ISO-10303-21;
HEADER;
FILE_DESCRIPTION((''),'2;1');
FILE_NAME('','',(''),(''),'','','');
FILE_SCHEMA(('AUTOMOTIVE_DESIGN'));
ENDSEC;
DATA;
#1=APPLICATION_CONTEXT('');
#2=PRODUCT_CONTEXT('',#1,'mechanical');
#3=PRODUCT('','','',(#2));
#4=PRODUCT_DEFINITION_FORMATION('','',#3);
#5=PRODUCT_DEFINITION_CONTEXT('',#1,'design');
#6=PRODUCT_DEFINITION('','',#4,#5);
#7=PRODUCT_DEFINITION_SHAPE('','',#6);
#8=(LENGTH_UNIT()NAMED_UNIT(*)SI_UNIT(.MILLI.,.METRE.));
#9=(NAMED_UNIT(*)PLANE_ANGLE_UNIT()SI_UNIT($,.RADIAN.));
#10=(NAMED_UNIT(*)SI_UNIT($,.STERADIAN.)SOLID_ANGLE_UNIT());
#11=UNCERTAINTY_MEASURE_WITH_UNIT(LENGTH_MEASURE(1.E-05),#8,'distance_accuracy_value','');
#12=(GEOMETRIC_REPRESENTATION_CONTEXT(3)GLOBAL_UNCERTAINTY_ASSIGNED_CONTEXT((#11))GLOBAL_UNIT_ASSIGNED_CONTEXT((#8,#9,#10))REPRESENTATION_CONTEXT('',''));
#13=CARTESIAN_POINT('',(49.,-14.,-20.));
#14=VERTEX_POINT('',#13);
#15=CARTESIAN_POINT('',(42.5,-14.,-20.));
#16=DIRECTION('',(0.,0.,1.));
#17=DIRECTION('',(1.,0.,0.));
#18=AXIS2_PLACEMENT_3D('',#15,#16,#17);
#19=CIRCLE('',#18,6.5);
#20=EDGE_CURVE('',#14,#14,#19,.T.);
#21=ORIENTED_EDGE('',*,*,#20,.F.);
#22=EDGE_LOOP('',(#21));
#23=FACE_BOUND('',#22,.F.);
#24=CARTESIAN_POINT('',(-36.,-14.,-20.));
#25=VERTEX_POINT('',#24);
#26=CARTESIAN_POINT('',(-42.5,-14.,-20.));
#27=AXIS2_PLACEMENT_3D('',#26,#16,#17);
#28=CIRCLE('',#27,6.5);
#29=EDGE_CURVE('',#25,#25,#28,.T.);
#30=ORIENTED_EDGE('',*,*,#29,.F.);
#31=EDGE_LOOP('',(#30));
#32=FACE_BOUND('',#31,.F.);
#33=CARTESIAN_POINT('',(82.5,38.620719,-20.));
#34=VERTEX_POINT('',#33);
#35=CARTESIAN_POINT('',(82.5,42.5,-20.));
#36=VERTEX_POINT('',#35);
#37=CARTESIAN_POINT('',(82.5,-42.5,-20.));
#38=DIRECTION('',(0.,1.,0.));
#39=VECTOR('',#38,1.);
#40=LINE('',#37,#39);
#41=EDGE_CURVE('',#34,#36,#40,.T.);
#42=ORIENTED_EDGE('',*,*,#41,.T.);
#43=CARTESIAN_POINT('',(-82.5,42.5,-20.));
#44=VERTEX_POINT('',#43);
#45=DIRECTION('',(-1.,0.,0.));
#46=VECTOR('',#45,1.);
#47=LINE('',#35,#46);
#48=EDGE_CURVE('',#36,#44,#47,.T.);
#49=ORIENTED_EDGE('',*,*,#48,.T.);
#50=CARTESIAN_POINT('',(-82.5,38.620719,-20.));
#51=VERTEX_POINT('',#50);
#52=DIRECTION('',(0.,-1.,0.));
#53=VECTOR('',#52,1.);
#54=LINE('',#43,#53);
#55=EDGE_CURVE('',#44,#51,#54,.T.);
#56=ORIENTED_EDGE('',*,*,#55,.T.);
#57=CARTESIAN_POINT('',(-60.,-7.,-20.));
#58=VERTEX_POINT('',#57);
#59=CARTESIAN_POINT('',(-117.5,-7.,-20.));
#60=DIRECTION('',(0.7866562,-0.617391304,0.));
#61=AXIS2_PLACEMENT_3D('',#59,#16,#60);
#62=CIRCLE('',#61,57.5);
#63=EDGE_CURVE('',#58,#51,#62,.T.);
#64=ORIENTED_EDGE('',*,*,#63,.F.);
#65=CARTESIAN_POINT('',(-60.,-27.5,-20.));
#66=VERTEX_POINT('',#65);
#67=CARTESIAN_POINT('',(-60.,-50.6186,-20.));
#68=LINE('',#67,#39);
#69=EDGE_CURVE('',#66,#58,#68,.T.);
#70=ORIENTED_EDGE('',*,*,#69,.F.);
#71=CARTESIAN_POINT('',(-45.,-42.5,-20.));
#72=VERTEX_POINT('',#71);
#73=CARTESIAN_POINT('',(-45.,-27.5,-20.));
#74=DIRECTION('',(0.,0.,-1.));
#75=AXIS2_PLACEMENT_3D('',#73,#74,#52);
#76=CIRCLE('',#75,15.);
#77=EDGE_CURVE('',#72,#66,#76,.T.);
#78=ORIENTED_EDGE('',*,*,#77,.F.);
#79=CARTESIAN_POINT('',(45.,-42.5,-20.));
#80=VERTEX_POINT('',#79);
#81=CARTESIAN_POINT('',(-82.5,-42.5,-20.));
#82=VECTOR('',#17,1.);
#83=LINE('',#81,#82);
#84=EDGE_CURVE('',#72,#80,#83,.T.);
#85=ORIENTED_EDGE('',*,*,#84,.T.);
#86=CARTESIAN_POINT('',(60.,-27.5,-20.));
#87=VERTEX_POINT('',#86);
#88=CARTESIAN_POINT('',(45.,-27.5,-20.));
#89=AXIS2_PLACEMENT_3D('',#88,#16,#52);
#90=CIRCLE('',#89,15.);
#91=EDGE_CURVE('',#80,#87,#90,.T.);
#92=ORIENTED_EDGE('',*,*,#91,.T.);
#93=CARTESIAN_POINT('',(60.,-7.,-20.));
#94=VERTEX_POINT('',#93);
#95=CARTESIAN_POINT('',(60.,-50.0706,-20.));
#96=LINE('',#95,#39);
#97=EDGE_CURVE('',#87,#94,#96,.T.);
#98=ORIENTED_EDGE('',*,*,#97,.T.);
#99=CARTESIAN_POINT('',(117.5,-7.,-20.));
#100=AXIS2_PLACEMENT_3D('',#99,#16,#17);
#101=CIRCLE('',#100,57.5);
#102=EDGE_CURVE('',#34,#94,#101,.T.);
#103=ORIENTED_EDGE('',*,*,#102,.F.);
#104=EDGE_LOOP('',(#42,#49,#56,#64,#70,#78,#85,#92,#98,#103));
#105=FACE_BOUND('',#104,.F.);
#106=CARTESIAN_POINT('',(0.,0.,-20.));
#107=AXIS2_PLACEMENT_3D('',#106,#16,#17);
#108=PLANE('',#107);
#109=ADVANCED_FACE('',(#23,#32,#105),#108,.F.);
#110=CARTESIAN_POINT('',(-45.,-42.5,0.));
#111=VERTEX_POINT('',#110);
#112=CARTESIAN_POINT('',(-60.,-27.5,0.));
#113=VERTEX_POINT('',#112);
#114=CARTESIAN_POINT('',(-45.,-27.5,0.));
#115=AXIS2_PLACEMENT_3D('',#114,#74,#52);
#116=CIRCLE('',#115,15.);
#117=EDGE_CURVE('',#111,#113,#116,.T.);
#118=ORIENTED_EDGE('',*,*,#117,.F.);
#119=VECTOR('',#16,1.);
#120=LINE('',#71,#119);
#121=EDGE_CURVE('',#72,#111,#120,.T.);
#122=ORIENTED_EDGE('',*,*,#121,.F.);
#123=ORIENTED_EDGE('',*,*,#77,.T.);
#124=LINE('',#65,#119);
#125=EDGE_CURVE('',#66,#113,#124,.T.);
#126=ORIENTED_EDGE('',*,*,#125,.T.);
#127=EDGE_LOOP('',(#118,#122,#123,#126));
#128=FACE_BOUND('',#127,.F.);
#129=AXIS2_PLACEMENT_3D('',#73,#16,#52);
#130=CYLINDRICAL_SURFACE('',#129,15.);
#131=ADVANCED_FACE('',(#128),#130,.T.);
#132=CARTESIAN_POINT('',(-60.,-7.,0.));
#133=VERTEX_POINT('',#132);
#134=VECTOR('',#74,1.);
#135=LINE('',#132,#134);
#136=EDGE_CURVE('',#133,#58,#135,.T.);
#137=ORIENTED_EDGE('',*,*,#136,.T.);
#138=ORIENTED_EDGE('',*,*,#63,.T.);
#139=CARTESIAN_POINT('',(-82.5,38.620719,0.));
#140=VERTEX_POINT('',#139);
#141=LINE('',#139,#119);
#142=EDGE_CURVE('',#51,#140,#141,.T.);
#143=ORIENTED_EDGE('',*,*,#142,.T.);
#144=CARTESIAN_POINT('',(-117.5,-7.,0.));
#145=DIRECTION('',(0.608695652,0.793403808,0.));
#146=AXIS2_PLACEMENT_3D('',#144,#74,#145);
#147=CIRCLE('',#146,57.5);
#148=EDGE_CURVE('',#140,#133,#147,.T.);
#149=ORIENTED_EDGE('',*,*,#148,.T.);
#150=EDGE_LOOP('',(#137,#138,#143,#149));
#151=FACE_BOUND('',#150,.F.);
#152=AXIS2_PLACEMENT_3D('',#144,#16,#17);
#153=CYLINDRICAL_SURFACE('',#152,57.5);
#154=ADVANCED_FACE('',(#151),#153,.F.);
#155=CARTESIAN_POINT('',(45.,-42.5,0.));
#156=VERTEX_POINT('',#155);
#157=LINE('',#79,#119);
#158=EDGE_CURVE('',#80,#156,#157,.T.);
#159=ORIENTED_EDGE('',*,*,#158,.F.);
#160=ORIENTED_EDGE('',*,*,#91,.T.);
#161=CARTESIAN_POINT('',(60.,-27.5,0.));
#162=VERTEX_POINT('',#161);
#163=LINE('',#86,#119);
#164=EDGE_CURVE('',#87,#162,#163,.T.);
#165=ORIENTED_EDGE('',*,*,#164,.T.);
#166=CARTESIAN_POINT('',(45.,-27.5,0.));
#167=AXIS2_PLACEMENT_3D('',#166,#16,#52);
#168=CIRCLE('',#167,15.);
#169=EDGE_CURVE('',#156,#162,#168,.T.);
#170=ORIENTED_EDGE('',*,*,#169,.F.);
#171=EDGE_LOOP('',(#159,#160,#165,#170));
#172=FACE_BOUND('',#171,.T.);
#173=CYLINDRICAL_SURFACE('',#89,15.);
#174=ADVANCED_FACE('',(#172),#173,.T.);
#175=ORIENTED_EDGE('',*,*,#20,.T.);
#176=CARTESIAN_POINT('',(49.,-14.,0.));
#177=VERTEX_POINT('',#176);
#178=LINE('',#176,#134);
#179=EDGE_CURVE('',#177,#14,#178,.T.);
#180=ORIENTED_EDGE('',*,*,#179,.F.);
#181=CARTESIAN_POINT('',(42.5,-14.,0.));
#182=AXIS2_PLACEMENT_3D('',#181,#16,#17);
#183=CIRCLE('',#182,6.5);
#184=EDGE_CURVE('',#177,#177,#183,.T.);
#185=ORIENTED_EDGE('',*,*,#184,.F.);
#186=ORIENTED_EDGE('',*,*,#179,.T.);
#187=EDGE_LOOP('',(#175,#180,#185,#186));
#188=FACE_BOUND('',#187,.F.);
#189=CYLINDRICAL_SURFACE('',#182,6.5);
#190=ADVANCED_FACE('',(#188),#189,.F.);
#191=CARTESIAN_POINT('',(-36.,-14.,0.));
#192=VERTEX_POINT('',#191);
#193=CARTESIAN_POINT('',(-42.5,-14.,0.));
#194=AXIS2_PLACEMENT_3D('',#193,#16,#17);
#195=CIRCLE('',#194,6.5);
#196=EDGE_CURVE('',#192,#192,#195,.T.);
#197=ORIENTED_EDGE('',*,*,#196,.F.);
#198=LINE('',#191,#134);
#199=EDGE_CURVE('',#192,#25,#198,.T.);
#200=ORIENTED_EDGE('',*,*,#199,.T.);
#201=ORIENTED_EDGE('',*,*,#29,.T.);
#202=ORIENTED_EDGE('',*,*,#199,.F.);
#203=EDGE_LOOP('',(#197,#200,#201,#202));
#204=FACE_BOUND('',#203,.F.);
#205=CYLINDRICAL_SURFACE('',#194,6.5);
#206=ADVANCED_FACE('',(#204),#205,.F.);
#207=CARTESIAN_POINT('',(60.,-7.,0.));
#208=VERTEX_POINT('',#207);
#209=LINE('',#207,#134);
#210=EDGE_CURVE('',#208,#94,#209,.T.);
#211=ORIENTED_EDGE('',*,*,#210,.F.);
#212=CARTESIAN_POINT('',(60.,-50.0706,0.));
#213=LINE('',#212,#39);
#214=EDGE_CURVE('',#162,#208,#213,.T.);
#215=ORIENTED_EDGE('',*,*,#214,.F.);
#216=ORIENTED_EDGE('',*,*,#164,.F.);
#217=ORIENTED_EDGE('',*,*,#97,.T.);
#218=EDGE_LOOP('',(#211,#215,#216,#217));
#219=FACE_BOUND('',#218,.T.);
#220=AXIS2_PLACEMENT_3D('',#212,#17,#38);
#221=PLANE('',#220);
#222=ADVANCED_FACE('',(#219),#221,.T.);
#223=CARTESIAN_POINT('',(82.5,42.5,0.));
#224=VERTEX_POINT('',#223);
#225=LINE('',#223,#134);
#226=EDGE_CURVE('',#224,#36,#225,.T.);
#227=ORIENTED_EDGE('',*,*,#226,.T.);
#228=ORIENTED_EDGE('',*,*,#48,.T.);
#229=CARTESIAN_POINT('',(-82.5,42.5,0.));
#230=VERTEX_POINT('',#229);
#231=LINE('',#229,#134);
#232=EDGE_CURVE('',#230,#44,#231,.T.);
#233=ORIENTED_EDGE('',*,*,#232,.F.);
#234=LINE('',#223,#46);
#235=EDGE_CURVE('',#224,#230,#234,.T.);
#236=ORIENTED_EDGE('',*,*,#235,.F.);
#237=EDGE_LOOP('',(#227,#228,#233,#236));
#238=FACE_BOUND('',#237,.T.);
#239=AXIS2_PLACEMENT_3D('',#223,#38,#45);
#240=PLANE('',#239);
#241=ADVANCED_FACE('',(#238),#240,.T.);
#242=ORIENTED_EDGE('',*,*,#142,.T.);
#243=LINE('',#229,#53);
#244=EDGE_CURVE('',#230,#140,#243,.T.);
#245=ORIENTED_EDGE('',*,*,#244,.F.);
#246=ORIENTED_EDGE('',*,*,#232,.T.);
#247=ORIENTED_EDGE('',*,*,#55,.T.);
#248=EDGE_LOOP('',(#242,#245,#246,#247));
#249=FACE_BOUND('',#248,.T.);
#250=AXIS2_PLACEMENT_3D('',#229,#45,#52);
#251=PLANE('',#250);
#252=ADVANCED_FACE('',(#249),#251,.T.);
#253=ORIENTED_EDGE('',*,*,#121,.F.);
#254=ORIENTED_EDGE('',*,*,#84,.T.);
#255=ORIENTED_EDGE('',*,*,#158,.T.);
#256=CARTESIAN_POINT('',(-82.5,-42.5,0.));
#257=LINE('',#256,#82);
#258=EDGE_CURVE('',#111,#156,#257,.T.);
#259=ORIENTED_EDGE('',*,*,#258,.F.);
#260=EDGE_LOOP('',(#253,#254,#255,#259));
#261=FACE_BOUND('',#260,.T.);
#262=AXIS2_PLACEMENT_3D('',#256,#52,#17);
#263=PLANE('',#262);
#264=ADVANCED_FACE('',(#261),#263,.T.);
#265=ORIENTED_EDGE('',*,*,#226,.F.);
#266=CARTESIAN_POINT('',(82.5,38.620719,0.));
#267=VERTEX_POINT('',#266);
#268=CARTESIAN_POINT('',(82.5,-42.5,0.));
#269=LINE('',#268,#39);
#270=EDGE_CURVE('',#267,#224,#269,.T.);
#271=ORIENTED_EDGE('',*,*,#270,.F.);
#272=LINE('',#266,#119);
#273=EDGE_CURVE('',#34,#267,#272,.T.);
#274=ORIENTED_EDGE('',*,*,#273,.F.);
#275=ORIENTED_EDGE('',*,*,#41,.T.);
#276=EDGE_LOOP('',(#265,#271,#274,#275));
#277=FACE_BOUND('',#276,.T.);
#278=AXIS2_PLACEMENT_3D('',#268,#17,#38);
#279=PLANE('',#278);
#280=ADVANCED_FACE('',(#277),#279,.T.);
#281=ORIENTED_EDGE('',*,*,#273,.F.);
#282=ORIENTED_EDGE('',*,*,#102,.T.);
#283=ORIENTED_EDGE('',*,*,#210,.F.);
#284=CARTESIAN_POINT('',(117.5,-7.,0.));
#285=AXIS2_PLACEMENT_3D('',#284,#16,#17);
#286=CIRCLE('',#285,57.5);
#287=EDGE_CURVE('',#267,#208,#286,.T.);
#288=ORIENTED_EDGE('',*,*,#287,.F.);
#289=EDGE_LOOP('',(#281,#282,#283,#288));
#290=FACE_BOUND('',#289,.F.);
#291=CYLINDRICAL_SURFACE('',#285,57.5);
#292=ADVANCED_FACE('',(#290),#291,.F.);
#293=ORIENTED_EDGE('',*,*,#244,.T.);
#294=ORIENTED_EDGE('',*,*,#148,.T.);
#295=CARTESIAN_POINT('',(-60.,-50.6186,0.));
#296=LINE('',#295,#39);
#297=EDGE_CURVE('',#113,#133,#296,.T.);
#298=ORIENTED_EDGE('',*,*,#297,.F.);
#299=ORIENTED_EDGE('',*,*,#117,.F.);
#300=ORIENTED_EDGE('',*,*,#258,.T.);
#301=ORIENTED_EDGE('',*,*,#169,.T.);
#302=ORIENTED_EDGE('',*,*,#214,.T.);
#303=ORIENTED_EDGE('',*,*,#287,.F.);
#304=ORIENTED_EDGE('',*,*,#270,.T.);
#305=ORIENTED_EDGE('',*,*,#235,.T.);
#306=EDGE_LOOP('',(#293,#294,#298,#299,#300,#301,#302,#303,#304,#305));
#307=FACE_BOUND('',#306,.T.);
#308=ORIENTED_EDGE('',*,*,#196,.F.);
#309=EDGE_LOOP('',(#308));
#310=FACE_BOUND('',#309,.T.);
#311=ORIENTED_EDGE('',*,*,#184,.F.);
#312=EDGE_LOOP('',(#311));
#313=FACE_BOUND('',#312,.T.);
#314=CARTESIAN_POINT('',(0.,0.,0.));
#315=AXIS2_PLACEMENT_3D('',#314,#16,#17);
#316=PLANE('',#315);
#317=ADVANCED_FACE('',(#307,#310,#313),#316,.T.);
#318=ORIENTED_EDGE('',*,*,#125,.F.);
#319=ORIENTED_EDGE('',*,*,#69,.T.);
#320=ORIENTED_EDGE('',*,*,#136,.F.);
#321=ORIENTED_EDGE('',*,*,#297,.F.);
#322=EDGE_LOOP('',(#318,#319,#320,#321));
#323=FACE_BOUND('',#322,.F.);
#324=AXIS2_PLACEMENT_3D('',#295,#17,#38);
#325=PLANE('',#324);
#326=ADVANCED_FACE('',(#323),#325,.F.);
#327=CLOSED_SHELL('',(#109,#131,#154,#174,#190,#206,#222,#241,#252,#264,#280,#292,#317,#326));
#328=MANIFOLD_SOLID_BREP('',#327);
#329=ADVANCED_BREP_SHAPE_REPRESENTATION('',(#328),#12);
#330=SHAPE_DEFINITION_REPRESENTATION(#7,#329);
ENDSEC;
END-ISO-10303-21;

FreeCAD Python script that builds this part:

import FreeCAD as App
import Part
import Sketcher

V = App.Vector


def edges_at(feature, points):
    """Names of the edges that pass closest to the given points."""
    edges = feature.Shape.Edges
    near = lambda p: min(range(len(edges)), key=lambda i: edges[i].distToShape(Part.Vertex(*p))[0])
    return sorted({f"Edge{near(p) + 1}" for p in points})

doc = App.newDocument("Part")
body = doc.addObject("PartDesign::Body", "Body")

# Sketch on XY plane
sketch1 = doc.addObject("Sketcher::SketchObject", "Sketch")
body.addObject(sketch1)
sketch1.AttachmentSupport = (doc.XY_Plane, [""])
sketch1.MapMode = "FlatFace"
sketch1.addGeometry([
    Part.LineSegment(V(-82, 42, 0), V(-82, -42, 0)),
    Part.LineSegment(V(-82, -42, 0), V(82, -42, 0)),
    Part.LineSegment(V(82, -42, 0), V(82, 42, 0)),
    Part.LineSegment(V(82, 42, 0), V(-82, 42, 0)),
], False)
sketch1.addConstraint([
    Sketcher.Constraint("Coincident", 0, 2, 1, 1),
    Sketcher.Constraint("Coincident", 1, 2, 2, 1),
    Sketcher.Constraint("Coincident", 2, 2, 3, 1),
    Sketcher.Constraint("Coincident", 3, 2, 0, 1),
    Sketcher.Constraint("Vertical", 0),
    Sketcher.Constraint("Horizontal", 1),
    Sketcher.Constraint("Vertical", 2),
    Sketcher.Constraint("Horizontal", 3),
    Sketcher.Constraint("Symmetric", 0, 2, 2, 2, -1, 1),
    Sketcher.Constraint("DistanceX", 1, 1, 1, 2, 165.0),
    Sketcher.Constraint("DistanceY", 0, 2, 0, 1, 85.0),
])
pad1 = doc.addObject("PartDesign::Pad", "Pad")
body.addObject(pad1)
pad1.Profile = sketch1
pad1.Length = 20
pad1.Reversed = True

# Sketch on XY plane
sketch2 = doc.addObject("Sketcher::SketchObject", "Sketch001")
body.addObject(sketch2)
sketch2.AttachmentSupport = (doc.XY_Plane, [""])
sketch2.MapMode = "FlatFace"
sketch2.addGeometry([
    Part.Circle(V(-42, -14, 0), V(0, 0, 1), 6),
    Part.Circle(V(-118, -7, 0), V(0, 0, 1), 58),
], False)
sketch2.addConstraint([
    Sketcher.Constraint("Diameter", 0, 13.0),
    Sketcher.Constraint("Diameter", 1, 115.0),
    Sketcher.Constraint("DistanceY", 0, 3, -1, 1, 14.0),
    Sketcher.Constraint("DistanceY", 1, 3, -1, 1, 7.0),
    Sketcher.Constraint("DistanceX", 1, 3, 0, 3, 75.0),
    Sketcher.Constraint("DistanceX", 0, 3, -1, 1, 42.5),
])
pocket1 = doc.addObject("PartDesign::Pocket", "Pocket")
body.addObject(pocket1)
pocket1.Profile = sketch2
pocket1.Length = 20

# Sketch on XY plane
sketch3 = doc.addObject("Sketcher::SketchObject", "Sketch002")
body.addObject(sketch3)
sketch3.AttachmentSupport = (doc.XY_Plane, [""])
sketch3.MapMode = "FlatFace"
sketch3.addGeometry([
    Part.Circle(V(118, -7, 0), V(0, 0, 1), 58),
    Part.Circle(V(42, -14, 0), V(0, 0, 1), 6),
], False)
sketch3.addConstraint([
    Sketcher.Constraint("Diameter", 0, 115.0),
    Sketcher.Constraint("Diameter", 1, 13.0),
    Sketcher.Constraint("DistanceY", 0, 3, -1, 1, 7.0),
    Sketcher.Constraint("DistanceY", 1, 3, -1, 1, 14.0),
    Sketcher.Constraint("DistanceX", 1, 3, 0, 3, 75.0),
    Sketcher.Constraint("DistanceX", -1, 1, 0, 3, 117.5),
])
pocket2 = doc.addObject("PartDesign::Pocket", "Pocket001")
body.addObject(pocket2)
pocket2.Profile = sketch3
pocket2.Length = 20

# Sketch on XY plane
sketch4 = doc.addObject("Sketcher::SketchObject", "Sketch003")
body.addObject(sketch4)
sketch4.AttachmentSupport = (doc.XY_Plane, [""])
sketch4.MapMode = "FlatFace"
sketch4.addGeometry([
    Part.LineSegment(V(82, -7, 0), V(60, -7, 0)),  # 0
    Part.LineSegment(V(60, -7, 0), V(60, -50, 0)),  # 1
    Part.LineSegment(V(60, -50, 0), V(82, -50, 0)),  # 2
    Part.LineSegment(V(82, -50, 0), V(82, -7, 0)),  # 3
    Part.LineSegment(V(-60, -51, 0), V(-60, -7, 0)),  # 4
    Part.LineSegment(V(-60, -7, 0), V(-89, -7, 0)),  # 5
    Part.LineSegment(V(-89, -7, 0), V(-89, -51, 0)),  # 6
    Part.LineSegment(V(-89, -51, 0), V(-60, -51, 0)),  # 7
], False)
sketch4.addConstraint([
    Sketcher.Constraint("Coincident", 0, 2, 1, 1),
    Sketcher.Constraint("Coincident", 1, 2, 2, 1),
    Sketcher.Constraint("Coincident", 2, 2, 3, 1),
    Sketcher.Constraint("Coincident", 3, 2, 0, 1),
    Sketcher.Constraint("Coincident", 4, 2, 5, 1),
    Sketcher.Constraint("Coincident", 5, 2, 6, 1),
    Sketcher.Constraint("Coincident", 6, 2, 7, 1),
    Sketcher.Constraint("Coincident", 7, 2, 4, 1),
    Sketcher.Constraint("Horizontal", 0),
    Sketcher.Constraint("Vertical", 1),
    Sketcher.Constraint("Horizontal", 2),
    Sketcher.Constraint("Vertical", 3),
    Sketcher.Constraint("Vertical", 4),
    Sketcher.Constraint("Horizontal", 5),
    Sketcher.Constraint("Vertical", 6),
    Sketcher.Constraint("Horizontal", 7),
    Sketcher.Constraint("Symmetric", 0, 2, 4, 2, -2),
    Sketcher.Constraint("DistanceX", 0, 2, 0, 1, 22.5),
    Sketcher.Constraint("DistanceX", -1, 1, 0, 2, 60.0),
    Sketcher.Constraint("DistanceY", 0, 2, -1, 1, 7.0),
    Sketcher.Constraint("DistanceX", 5, 2, 5, 1, 28.75),
    Sketcher.Constraint("DistanceY", 1, 2, 1, 1, 43.0706),
    Sketcher.Constraint("DistanceY", 4, 1, 4, 2, 43.6186),
])
pocket3 = doc.addObject("PartDesign::Pocket", "Pocket002")
body.addObject(pocket3)
pocket3.Profile = sketch4
pocket3.Length = 20
doc.recompute()

fillet = doc.addObject("PartDesign::Fillet", "Fillet")
body.addObject(fillet)
fillet.Base = (pocket3, edges_at(pocket3, [(60, -42.5, -10), (-60, -42.5, -10)]))
fillet.Radius = 15

doc.recompute()
